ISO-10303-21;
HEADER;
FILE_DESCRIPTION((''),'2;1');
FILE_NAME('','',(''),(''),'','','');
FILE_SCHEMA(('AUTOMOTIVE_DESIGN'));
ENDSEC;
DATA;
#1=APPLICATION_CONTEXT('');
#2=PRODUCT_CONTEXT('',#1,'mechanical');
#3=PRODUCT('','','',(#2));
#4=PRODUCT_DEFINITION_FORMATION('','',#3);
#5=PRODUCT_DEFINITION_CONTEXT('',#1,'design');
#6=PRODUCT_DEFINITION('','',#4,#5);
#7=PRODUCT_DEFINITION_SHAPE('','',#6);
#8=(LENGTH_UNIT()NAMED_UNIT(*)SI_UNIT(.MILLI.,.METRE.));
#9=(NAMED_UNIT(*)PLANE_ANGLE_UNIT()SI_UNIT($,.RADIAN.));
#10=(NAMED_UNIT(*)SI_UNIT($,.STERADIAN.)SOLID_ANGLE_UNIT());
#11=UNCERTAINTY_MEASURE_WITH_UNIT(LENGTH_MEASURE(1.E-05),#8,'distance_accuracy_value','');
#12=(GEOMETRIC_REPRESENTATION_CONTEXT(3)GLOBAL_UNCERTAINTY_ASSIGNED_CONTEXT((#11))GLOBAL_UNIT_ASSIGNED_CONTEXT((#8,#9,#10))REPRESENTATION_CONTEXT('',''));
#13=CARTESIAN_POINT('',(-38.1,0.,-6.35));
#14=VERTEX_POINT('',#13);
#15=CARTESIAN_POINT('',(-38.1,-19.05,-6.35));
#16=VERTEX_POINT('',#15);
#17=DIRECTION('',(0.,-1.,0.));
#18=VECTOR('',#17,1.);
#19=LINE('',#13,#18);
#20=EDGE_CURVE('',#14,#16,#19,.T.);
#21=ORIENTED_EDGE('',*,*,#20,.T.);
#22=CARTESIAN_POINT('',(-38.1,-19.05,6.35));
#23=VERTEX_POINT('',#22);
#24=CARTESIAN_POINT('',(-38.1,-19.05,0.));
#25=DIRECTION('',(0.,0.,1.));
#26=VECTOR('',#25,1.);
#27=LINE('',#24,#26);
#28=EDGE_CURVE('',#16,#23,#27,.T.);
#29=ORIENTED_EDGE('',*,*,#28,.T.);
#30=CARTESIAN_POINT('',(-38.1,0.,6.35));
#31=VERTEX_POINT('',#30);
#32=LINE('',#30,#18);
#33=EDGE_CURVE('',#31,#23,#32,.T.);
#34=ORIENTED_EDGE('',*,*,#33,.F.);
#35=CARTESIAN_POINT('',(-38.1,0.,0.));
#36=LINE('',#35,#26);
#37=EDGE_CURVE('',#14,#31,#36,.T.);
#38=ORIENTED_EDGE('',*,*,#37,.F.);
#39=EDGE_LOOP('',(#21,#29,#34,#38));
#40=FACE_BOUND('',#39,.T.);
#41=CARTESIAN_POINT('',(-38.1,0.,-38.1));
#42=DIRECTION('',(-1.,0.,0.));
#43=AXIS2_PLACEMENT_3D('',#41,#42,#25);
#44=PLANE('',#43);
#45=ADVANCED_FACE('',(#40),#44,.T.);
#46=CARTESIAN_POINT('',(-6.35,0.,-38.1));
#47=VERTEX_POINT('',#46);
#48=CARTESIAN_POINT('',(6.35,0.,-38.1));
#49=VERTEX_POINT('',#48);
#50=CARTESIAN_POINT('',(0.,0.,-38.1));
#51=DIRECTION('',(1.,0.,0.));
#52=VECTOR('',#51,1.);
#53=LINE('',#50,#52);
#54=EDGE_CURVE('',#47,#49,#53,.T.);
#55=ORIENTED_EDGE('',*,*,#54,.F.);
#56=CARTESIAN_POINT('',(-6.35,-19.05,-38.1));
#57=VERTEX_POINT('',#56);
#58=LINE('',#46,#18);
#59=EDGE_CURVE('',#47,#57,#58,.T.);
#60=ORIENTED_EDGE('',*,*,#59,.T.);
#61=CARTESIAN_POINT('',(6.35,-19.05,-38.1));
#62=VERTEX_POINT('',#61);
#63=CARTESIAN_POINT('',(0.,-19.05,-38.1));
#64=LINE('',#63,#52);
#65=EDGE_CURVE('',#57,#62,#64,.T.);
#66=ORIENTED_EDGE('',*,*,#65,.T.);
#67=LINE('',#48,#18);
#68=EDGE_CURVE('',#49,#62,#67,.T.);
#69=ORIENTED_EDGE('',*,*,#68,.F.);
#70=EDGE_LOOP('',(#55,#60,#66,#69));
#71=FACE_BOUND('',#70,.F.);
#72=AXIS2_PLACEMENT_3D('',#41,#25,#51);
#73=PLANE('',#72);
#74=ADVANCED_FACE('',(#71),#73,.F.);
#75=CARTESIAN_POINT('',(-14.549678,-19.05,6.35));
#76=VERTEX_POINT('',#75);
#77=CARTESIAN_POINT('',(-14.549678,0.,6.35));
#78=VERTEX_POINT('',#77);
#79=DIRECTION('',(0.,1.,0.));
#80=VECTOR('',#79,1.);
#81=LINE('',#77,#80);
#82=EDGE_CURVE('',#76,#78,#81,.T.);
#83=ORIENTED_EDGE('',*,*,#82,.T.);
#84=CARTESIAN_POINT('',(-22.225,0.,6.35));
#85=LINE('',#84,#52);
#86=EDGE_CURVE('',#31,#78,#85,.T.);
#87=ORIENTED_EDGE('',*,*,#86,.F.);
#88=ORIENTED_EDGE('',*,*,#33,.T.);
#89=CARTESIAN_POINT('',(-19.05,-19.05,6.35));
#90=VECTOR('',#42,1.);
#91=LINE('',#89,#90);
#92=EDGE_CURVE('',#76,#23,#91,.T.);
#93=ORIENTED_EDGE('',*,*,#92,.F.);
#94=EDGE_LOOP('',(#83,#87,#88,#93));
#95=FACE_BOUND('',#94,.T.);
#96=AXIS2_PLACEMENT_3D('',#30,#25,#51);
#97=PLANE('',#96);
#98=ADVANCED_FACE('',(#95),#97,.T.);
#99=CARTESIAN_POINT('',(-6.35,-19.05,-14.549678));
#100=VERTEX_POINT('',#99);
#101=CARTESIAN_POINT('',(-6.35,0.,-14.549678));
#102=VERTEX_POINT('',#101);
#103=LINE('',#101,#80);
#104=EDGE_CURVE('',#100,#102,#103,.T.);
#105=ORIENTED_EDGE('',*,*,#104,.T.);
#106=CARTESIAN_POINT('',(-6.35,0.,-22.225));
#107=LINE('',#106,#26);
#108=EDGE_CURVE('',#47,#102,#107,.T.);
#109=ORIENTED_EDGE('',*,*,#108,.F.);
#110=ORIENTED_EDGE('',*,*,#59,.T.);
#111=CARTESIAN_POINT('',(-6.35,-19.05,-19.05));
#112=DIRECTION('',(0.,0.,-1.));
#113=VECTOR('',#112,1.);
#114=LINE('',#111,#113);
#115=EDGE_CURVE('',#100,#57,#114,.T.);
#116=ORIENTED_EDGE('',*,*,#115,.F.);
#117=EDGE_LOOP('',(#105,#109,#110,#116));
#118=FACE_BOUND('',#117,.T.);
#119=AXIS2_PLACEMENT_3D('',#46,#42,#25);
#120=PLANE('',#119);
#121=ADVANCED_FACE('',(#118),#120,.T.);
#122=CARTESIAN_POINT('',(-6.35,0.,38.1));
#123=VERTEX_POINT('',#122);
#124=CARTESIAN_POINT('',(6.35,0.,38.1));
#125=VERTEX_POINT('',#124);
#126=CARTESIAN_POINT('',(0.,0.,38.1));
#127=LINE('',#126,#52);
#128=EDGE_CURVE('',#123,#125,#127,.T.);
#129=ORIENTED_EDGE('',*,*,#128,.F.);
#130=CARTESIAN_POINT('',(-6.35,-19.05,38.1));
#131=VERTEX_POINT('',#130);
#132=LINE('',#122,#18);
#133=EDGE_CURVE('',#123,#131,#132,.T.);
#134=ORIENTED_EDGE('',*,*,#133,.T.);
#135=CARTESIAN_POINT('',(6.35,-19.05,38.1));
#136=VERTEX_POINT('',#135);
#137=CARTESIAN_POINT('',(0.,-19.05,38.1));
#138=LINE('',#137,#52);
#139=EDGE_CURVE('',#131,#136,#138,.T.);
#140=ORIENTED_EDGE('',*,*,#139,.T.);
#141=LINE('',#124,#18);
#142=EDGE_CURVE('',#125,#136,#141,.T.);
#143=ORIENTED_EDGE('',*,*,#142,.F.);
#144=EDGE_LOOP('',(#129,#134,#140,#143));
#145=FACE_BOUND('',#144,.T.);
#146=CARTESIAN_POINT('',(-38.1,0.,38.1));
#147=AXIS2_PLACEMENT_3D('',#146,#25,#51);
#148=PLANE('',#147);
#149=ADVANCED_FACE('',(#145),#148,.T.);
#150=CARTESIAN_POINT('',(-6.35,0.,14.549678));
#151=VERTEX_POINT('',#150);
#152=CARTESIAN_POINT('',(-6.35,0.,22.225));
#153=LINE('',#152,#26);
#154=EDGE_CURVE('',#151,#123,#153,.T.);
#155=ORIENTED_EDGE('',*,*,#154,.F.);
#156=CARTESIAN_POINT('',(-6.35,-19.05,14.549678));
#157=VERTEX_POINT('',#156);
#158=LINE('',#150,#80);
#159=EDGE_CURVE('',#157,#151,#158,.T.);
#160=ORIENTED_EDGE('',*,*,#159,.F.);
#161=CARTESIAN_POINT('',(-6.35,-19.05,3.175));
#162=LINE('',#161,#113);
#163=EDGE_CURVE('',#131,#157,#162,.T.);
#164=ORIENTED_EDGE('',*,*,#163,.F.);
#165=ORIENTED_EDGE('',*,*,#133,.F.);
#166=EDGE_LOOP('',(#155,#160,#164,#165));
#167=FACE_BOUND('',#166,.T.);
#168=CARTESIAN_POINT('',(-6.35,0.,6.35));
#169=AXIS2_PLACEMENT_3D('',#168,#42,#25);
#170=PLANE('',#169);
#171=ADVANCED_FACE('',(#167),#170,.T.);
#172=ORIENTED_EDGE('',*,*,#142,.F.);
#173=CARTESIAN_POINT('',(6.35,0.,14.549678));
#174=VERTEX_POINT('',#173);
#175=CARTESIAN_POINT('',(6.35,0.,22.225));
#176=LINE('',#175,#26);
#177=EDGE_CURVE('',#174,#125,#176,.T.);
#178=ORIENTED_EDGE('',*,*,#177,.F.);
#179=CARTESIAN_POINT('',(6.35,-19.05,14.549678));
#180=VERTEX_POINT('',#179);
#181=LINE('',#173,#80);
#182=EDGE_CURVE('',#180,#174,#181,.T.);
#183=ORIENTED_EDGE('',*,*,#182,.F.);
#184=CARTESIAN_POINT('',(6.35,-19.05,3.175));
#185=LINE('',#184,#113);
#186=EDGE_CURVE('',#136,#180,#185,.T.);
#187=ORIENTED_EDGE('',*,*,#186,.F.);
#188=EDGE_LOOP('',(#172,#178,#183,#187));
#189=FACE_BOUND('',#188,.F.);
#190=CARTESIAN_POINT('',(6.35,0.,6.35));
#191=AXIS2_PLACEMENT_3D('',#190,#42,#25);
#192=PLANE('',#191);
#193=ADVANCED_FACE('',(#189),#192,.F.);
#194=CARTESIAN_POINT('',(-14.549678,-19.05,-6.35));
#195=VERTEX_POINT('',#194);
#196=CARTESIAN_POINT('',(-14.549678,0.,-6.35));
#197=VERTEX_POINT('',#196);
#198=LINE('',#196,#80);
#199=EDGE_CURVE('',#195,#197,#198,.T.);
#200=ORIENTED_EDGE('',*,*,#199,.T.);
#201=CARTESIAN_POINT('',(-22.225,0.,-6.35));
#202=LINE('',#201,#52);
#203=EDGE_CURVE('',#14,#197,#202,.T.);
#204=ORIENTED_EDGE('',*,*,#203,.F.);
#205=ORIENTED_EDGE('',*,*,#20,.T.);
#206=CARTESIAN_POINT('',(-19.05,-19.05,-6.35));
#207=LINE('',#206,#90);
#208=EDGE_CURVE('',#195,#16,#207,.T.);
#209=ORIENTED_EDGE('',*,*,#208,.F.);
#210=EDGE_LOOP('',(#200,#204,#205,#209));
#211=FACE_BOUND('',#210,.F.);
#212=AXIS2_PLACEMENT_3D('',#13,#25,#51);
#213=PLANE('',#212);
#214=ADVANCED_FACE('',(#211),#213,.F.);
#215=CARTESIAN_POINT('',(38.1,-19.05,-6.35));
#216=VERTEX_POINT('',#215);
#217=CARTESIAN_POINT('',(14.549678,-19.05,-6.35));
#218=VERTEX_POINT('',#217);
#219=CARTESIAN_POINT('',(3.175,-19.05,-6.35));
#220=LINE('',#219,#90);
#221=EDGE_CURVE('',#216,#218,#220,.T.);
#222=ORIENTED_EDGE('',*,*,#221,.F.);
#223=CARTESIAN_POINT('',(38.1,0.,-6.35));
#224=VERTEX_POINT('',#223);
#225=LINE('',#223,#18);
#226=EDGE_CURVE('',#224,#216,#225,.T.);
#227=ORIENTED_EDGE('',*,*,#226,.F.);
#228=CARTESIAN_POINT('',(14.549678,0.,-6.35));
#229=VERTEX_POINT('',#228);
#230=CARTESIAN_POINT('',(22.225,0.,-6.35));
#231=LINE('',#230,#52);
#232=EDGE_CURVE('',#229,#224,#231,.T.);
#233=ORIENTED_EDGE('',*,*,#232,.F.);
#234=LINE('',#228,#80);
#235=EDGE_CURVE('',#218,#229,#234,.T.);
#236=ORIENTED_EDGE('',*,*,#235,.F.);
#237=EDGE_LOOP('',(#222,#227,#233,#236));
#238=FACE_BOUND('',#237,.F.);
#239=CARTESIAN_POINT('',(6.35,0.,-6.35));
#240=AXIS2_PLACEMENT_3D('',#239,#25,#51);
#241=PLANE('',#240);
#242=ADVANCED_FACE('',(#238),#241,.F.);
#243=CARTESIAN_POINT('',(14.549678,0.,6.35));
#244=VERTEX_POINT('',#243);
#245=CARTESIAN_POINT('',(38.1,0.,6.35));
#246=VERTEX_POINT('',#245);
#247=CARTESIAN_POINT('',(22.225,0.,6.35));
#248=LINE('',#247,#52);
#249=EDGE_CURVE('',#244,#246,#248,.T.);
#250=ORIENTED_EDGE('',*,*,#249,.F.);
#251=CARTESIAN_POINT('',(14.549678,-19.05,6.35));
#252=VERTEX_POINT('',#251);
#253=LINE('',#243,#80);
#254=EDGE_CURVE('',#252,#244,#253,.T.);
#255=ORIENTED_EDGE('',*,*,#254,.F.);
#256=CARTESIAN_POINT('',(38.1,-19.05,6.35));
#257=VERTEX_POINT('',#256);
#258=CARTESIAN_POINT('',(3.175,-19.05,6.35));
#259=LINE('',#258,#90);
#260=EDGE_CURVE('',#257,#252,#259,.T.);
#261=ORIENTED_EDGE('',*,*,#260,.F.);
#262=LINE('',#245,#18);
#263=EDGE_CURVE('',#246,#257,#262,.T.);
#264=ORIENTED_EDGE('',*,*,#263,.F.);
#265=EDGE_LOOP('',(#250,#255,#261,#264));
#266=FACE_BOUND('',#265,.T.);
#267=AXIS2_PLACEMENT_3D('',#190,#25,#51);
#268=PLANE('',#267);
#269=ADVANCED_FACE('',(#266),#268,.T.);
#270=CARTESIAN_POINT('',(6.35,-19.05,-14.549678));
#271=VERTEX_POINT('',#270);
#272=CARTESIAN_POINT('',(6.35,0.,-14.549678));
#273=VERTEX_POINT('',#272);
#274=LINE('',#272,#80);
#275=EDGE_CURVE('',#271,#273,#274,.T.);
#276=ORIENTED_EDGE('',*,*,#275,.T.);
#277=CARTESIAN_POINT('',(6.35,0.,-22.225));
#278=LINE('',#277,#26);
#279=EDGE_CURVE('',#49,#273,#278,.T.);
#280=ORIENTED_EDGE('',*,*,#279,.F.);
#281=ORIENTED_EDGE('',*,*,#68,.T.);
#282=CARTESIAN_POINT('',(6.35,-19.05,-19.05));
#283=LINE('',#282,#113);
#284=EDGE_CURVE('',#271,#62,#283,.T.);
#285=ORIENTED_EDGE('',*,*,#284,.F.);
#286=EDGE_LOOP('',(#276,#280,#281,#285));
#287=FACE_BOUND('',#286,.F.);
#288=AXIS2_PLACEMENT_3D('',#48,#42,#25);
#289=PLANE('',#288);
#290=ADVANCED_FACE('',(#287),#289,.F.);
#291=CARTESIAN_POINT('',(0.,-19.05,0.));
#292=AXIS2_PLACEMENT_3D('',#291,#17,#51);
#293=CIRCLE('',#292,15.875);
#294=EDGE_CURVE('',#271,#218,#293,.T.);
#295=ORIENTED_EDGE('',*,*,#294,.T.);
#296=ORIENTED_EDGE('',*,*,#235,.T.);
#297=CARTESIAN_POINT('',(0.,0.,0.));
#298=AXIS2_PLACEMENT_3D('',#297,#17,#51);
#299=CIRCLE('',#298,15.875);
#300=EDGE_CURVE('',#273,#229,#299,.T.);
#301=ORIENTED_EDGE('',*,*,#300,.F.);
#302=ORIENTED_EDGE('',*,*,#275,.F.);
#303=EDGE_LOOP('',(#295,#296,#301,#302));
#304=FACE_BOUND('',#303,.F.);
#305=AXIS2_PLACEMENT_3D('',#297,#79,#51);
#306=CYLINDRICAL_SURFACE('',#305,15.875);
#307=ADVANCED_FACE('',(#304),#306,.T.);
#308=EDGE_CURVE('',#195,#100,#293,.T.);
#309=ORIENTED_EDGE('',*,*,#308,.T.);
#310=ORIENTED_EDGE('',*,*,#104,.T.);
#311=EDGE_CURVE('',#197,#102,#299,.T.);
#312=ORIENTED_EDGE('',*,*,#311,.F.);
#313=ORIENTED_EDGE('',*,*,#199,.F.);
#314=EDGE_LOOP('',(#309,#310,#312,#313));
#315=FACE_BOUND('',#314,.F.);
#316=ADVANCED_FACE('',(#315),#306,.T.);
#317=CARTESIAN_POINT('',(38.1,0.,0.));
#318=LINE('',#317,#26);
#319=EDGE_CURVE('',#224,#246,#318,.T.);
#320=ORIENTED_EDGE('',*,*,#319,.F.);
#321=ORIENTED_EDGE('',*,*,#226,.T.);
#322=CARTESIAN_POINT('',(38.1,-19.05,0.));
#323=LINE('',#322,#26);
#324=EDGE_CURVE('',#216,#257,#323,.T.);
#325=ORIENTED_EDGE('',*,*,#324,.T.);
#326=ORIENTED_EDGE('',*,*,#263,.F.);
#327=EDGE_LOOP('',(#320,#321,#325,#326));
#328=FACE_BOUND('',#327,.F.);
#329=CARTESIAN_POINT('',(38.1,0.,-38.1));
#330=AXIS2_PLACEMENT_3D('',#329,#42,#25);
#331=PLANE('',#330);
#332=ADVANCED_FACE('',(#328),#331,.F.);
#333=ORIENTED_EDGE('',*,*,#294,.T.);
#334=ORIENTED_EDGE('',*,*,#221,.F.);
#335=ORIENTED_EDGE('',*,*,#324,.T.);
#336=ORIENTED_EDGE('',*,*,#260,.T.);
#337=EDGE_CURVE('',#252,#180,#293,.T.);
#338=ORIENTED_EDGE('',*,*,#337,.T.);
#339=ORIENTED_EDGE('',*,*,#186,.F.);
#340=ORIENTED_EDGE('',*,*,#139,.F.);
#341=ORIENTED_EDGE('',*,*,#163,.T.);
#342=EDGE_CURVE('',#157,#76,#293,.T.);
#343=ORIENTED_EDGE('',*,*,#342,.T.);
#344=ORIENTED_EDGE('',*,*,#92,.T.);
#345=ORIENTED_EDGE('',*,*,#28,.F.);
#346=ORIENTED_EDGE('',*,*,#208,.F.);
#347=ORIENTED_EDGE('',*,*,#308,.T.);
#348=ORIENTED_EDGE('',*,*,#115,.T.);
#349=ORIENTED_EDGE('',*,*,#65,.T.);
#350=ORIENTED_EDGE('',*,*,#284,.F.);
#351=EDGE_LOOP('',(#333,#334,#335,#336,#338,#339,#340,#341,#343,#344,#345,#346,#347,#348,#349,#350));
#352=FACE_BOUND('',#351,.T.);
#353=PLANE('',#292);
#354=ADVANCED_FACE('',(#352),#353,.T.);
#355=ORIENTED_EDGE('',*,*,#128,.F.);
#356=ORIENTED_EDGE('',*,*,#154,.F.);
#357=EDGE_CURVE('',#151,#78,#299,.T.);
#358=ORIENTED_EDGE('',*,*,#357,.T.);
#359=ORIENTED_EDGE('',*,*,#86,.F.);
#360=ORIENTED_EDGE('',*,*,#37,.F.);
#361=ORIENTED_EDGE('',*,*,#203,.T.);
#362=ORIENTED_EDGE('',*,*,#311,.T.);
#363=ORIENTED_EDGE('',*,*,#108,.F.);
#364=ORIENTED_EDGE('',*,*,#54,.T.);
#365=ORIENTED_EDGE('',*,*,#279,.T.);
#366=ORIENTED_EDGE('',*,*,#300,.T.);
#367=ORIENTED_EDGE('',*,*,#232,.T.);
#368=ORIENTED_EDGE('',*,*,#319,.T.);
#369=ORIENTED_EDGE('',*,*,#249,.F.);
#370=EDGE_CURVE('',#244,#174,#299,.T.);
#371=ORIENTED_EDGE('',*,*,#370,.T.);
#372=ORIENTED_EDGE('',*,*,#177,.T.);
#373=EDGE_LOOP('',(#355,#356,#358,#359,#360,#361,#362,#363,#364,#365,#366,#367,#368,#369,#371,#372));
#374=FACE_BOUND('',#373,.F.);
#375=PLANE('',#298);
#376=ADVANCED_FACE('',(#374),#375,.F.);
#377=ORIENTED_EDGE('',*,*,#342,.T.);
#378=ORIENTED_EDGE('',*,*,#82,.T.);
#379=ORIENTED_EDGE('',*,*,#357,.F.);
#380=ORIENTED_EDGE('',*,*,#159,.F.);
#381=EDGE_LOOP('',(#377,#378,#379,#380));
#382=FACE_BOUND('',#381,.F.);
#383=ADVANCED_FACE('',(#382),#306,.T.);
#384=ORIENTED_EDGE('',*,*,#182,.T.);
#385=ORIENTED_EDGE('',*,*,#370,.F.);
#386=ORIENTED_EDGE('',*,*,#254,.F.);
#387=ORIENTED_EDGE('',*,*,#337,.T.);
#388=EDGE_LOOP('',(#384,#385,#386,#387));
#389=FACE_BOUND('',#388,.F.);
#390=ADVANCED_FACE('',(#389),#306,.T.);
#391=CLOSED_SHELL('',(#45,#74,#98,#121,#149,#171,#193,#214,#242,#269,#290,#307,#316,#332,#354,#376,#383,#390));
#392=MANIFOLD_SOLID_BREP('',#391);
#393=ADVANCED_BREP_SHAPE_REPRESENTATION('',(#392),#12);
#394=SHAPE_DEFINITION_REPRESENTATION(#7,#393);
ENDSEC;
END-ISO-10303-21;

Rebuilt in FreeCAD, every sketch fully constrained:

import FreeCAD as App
import Part
import Sketcher
from FreeCAD import Vector
Q = App.Units.Quantity

doc = App.newDocument("Part")
body = doc.addObject("PartDesign::Body", "Body")

sketch1 = body.newObject("Sketcher::SketchObject", "Sketch")
sketch1.AttachmentSupport = (doc.getObject("XZ_Plane"), [""])
sketch1.MapMode = "FlatFace"
sketch1.addGeometry(Part.LineSegment(Vector(-38, 38, 0), Vector(-38, -38, 0)), False)
sketch1.addGeometry(Part.LineSegment(Vector(-38, -38, 0), Vector(38, -38, 0)), False)
sketch1.addGeometry(Part.LineSegment(Vector(38, -38, 0), Vector(38, 38, 0)), False)
sketch1.addGeometry(Part.LineSegment(Vector(38, 38, 0), Vector(-38, 38, 0)), False)
sketch1.addConstraint(Sketcher.Constraint("Coincident", 0, 2, 1, 1))
sketch1.addConstraint(Sketcher.Constraint("Coincident", 1, 2, 2, 1))
sketch1.addConstraint(Sketcher.Constraint("Coincident", 2, 2, 3, 1))
sketch1.addConstraint(Sketcher.Constraint("Coincident", 3, 2, 0, 1))
sketch1.addConstraint(Sketcher.Constraint("Vertical", 0))
sketch1.addConstraint(Sketcher.Constraint("Horizontal", 1))
sketch1.addConstraint(Sketcher.Constraint("Vertical", 2))
sketch1.addConstraint(Sketcher.Constraint("Horizontal", 3))
sketch1.addConstraint(Sketcher.Constraint("Symmetric", 0, 2, 2, 2, -1, 1))
sketch1.addConstraint(Sketcher.Constraint("Equal", 3, 0))
sketch1.addConstraint(Sketcher.Constraint("DistanceX", 1, 1, 1, 2, Q("3 in")))
pad1 = body.newObject("PartDesign::Pad", "Pad")
pad1.Profile = sketch1
pad1.Length = Q("0.75 in")

sketch2 = body.newObject("Sketcher::SketchObject", "Sketch001")
sketch2.AttachmentSupport = (doc.getObject("XZ_Plane"), [""])
sketch2.MapMode = "FlatFace"
sketch2.addGeometry(Part.LineSegment(Vector(-38, 38, 0), Vector(-38, 6, 0)), False)
sketch2.addGeometry(Part.LineSegment(Vector(-38, 6, 0), Vector(-6, 6, 0)), False)
sketch2.addGeometry(Part.LineSegment(Vector(-6, 6, 0), Vector(-6, 38, 0)), False)
sketch2.addGeometry(Part.LineSegment(Vector(-6, 38, 0), Vector(-38, 38, 0)), False)
sketch2.addGeometry(Part.LineSegment(Vector(-38, -6, 0), Vector(-38, -38, 0)), False)
sketch2.addGeometry(Part.LineSegment(Vector(-38, -38, 0), Vector(-6, -38, 0)), False)
sketch2.addGeometry(Part.LineSegment(Vector(-6, -38, 0), Vector(-6, -6, 0)), False)
sketch2.addGeometry(Part.LineSegment(Vector(-6, -6, 0), Vector(-38, -6, 0)), False)
sketch2.addGeometry(Part.LineSegment(Vector(6, -6, 0), Vector(6, -38, 0)), False)
sketch2.addGeometry(Part.LineSegment(Vector(6, -38, 0), Vector(38, -38, 0)), False)
sketch2.addGeometry(Part.LineSegment(Vector(38, -38, 0), Vector(38, -6, 0)), False)
sketch2.addGeometry(Part.LineSegment(Vector(38, -6, 0), Vector(6, -6, 0)), False)
sketch2.addGeometry(Part.LineSegment(Vector(6, 38, 0), Vector(6, 6, 0)), False)
sketch2.addGeometry(Part.LineSegment(Vector(6, 6, 0), Vector(38, 6, 0)), False)
sketch2.addGeometry(Part.LineSegment(Vector(38, 6, 0), Vector(38, 38, 0)), False)
sketch2.addGeometry(Part.LineSegment(Vector(38, 38, 0), Vector(6, 38, 0)), False)
sketch2.addConstraint(Sketcher.Constraint("Coincident", 0, 2, 1, 1))
sketch2.addConstraint(Sketcher.Constraint("Coincident", 1, 2, 2, 1))
sketch2.addConstraint(Sketcher.Constraint("Coincident", 2, 2, 3, 1))
sketch2.addConstraint(Sketcher.Constraint("Coincident", 3, 2, 0, 1))
sketch2.addConstraint(Sketcher.Constraint("Coincident", 4, 2, 5, 1))
sketch2.addConstraint(Sketcher.Constraint("Coincident", 5, 2, 6, 1))
sketch2.addConstraint(Sketcher.Constraint("Coincident", 6, 2, 7, 1))
sketch2.addConstraint(Sketcher.Constraint("Coincident", 7, 2, 4, 1))
sketch2.addConstraint(Sketcher.Constraint("Coincident", 8, 2, 9, 1))
sketch2.addConstraint(Sketcher.Constraint("Coincident", 9, 2, 10, 1))
sketch2.addConstraint(Sketcher.Constraint("Coincident", 10, 2, 11, 1))
sketch2.addConstraint(Sketcher.Constraint("Coincident", 11, 2, 8, 1))
sketch2.addConstraint(Sketcher.Constraint("Coincident", 12, 2, 13, 1))
sketch2.addConstraint(Sketcher.Constraint("Coincident", 13, 2, 14, 1))
sketch2.addConstraint(Sketcher.Constraint("Coincident", 14, 2, 15, 1))
sketch2.addConstraint(Sketcher.Constraint("Coincident", 15, 2, 12, 1))
sketch2.addConstraint(Sketcher.Constraint("Vertical", 0))
sketch2.addConstraint(Sketcher.Constraint("Horizontal", 1))
sketch2.addConstraint(Sketcher.Constraint("Vertical", 2))
sketch2.addConstraint(Sketcher.Constraint("Horizontal", 3))
sketch2.addConstraint(Sketcher.Constraint("Vertical", 4))
sketch2.addConstraint(Sketcher.Constraint("Horizontal", 5))
sketch2.addConstraint(Sketcher.Constraint("Vertical", 6))
sketch2.addConstraint(Sketcher.Constraint("Horizontal", 7))
sketch2.addConstraint(Sketcher.Constraint("Vertical", 8))
sketch2.addConstraint(Sketcher.Constraint("Horizontal", 9))
sketch2.addConstraint(Sketcher.Constraint("Vertical", 10))
sketch2.addConstraint(Sketcher.Constraint("Horizontal", 11))
sketch2.addConstraint(Sketcher.Constraint("Vertical", 12))
sketch2.addConstraint(Sketcher.Constraint("Horizontal", 13))
sketch2.addConstraint(Sketcher.Constraint("Vertical", 14))
sketch2.addConstraint(Sketcher.Constraint("Horizontal", 15))
sketch2.addConstraint(Sketcher.Constraint("Symmetric", 2, 2, 8, 2, -1, 1))
sketch2.addConstraint(Sketcher.Constraint("Symmetric", 0, 2, 10, 2, -1, 1))
sketch2.addConstraint(Sketcher.Constraint("Symmetric", 6, 2, 12, 2, -1, 1))
sketch2.addConstraint(Sketcher.Constraint("Symmetric", 4, 2, 14, 2, -1, 1))
sketch2.addConstraint(Sketcher.Constraint("Symmetric", 5, 2, 8, 2, -2))
sketch2.addConstraint(Sketcher.Constraint("Symmetric", 7, 2, 10, 2, -2))
sketch2.addConstraint(Sketcher.Constraint("Equal", 15, 0))
sketch2.addConstraint(Sketcher.Constraint("DistanceY", 4, 2, 3, 2, Q("3 in")))
sketch2.addConstraint(Sketcher.Constraint("DistanceX", 4, 2, 9, 2, Q("3 in")))
sketch2.addConstraint(Sketcher.Constraint("DistanceX", 1, 1, 1, 2, Q("1.25 in")))
pocket1 = body.newObject("PartDesign::Pocket", "Pocket")
pocket1.Profile = sketch2
pocket1.Type = "ThroughAll"
pocket1.Reversed = True

sketch3 = body.newObject("Sketcher::SketchObject", "Sketch002")
sketch3.AttachmentSupport = (doc.getObject("XZ_Plane"), [""])
sketch3.MapMode = "FlatFace"
sketch3.addGeometry(Part.Circle(Vector(0, 0, 0), Vector(0, 0, 1), 16), False)
sketch3.addConstraint(Sketcher.Constraint("Coincident", 0, 3, -1, 1))
sketch3.addConstraint(Sketcher.Constraint("Diameter", 0, Q("1.25 in")))
pad2 = body.newObject("PartDesign::Pad", "Pad001")
pad2.Profile = sketch3
pad2.Length = Q("0.75 in")

doc.recompute()
